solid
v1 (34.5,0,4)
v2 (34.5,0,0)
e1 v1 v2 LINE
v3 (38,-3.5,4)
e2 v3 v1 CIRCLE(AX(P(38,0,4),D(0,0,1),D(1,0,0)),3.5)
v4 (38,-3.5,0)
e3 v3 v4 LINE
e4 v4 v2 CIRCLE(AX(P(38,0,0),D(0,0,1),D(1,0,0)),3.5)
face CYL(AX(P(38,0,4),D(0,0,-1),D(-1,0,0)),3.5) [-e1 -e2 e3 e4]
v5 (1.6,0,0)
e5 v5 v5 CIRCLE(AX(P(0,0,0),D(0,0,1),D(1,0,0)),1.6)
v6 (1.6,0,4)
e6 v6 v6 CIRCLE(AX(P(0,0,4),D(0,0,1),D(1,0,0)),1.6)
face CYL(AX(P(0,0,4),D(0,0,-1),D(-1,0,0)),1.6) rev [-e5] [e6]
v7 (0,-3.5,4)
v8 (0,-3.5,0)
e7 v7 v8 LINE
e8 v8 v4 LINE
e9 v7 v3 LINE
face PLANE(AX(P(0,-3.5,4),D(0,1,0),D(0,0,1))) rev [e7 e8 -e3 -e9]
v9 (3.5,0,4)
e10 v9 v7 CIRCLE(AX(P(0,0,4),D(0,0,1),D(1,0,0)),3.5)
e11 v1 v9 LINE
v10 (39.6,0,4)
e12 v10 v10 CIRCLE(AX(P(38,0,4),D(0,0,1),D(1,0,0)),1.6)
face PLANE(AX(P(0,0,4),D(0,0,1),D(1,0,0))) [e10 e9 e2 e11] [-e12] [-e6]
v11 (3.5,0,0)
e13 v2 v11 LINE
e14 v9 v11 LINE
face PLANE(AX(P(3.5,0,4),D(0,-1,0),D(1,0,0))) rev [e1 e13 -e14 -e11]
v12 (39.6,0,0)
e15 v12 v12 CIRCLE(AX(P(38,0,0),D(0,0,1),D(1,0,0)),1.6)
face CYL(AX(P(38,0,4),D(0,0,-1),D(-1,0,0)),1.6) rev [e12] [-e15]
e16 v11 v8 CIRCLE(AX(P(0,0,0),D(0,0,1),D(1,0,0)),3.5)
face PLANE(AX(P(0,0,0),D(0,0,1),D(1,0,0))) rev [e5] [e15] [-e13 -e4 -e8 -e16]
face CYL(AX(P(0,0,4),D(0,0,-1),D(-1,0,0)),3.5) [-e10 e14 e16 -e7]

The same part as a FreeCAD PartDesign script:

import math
import FreeCAD as App
import Part
import Sketcher
from FreeCAD import Vector
Q = App.Units.Quantity

doc = App.newDocument("Part")
body = doc.addObject("PartDesign::Body", "Body")

sketch1 = doc.addObject("Sketcher::SketchObject", "Sketch")
body.addObject(sketch1)
sketch1.AttachmentSupport = (doc.XY_Plane, [""])
sketch1.MapMode = "FlatFace"
sketch1.addGeometry(Part.LineSegment(Vector(0, -3.5, 0), Vector(38, -3.5, 0)), False)
sketch1.addGeometry(Part.ArcOfCircle(Part.Circle(Vector(38, 0, 0), Vector(0, 0, 1), 3.5), math.radians(-90), math.radians(180)), False)
sketch1.addGeometry(Part.LineSegment(Vector(34.5, 0, 0), Vector(3.5, 0, 0)), False)
sketch1.addGeometry(Part.ArcOfCircle(Part.Circle(Vector(0, 0, 0), Vector(0, 0, 1), 3.5), math.radians(0), math.radians(270)), False)
sketch1.addGeometry(Part.Circle(Vector(0, 0, 0), Vector(0, 0, 1), 1.6), False)
sketch1.addGeometry(Part.Circle(Vector(38, 0, 0), Vector(0, 0, 1), 1.6), False)
sketch1.addConstraint(Sketcher.Constraint("Tangent", 0, 2, 1, 1))
sketch1.addConstraint(Sketcher.Constraint("Coincident", 1, 2, 2, 1))
sketch1.addConstraint(Sketcher.Constraint("Coincident", 2, 2, 3, 1))
sketch1.addConstraint(Sketcher.Constraint("Tangent", 3, 2, 0, 1))
sketch1.addConstraint(Sketcher.Constraint("Horizontal", 0))
sketch1.addConstraint(Sketcher.Constraint("Horizontal", 2))
sketch1.addConstraint(Sketcher.Constraint("Coincident", 3, 3, -1, 1))
sketch1.addConstraint(Sketcher.Constraint("Coincident", 4, 3, -1, 1))
sketch1.addConstraint(Sketcher.Constraint("Coincident", 5, 3, 1, 3))
sketch1.addConstraint(Sketcher.Constraint("Equal", 1, 3))
sketch1.addConstraint(Sketcher.Constraint("Equal", 4, 5))
sketch1.addConstraint(Sketcher.Constraint("PointOnObject", 1, 2, -1))
sketch1.addConstraint(Sketcher.Constraint("Diameter", 4, Q("3.2 mm")))
sketch1.addConstraint(Sketcher.Constraint("Radius", 1, Q("3.5 mm")))
sketch1.addConstraint(Sketcher.Constraint("DistanceX", 0, 1, 0, 2, Q("38 mm")))
pad1 = doc.addObject("PartDesign::Pad", "Pad")
body.addObject(pad1)
pad1.Profile = sketch1
pad1.Length = 4

doc.recompute()
